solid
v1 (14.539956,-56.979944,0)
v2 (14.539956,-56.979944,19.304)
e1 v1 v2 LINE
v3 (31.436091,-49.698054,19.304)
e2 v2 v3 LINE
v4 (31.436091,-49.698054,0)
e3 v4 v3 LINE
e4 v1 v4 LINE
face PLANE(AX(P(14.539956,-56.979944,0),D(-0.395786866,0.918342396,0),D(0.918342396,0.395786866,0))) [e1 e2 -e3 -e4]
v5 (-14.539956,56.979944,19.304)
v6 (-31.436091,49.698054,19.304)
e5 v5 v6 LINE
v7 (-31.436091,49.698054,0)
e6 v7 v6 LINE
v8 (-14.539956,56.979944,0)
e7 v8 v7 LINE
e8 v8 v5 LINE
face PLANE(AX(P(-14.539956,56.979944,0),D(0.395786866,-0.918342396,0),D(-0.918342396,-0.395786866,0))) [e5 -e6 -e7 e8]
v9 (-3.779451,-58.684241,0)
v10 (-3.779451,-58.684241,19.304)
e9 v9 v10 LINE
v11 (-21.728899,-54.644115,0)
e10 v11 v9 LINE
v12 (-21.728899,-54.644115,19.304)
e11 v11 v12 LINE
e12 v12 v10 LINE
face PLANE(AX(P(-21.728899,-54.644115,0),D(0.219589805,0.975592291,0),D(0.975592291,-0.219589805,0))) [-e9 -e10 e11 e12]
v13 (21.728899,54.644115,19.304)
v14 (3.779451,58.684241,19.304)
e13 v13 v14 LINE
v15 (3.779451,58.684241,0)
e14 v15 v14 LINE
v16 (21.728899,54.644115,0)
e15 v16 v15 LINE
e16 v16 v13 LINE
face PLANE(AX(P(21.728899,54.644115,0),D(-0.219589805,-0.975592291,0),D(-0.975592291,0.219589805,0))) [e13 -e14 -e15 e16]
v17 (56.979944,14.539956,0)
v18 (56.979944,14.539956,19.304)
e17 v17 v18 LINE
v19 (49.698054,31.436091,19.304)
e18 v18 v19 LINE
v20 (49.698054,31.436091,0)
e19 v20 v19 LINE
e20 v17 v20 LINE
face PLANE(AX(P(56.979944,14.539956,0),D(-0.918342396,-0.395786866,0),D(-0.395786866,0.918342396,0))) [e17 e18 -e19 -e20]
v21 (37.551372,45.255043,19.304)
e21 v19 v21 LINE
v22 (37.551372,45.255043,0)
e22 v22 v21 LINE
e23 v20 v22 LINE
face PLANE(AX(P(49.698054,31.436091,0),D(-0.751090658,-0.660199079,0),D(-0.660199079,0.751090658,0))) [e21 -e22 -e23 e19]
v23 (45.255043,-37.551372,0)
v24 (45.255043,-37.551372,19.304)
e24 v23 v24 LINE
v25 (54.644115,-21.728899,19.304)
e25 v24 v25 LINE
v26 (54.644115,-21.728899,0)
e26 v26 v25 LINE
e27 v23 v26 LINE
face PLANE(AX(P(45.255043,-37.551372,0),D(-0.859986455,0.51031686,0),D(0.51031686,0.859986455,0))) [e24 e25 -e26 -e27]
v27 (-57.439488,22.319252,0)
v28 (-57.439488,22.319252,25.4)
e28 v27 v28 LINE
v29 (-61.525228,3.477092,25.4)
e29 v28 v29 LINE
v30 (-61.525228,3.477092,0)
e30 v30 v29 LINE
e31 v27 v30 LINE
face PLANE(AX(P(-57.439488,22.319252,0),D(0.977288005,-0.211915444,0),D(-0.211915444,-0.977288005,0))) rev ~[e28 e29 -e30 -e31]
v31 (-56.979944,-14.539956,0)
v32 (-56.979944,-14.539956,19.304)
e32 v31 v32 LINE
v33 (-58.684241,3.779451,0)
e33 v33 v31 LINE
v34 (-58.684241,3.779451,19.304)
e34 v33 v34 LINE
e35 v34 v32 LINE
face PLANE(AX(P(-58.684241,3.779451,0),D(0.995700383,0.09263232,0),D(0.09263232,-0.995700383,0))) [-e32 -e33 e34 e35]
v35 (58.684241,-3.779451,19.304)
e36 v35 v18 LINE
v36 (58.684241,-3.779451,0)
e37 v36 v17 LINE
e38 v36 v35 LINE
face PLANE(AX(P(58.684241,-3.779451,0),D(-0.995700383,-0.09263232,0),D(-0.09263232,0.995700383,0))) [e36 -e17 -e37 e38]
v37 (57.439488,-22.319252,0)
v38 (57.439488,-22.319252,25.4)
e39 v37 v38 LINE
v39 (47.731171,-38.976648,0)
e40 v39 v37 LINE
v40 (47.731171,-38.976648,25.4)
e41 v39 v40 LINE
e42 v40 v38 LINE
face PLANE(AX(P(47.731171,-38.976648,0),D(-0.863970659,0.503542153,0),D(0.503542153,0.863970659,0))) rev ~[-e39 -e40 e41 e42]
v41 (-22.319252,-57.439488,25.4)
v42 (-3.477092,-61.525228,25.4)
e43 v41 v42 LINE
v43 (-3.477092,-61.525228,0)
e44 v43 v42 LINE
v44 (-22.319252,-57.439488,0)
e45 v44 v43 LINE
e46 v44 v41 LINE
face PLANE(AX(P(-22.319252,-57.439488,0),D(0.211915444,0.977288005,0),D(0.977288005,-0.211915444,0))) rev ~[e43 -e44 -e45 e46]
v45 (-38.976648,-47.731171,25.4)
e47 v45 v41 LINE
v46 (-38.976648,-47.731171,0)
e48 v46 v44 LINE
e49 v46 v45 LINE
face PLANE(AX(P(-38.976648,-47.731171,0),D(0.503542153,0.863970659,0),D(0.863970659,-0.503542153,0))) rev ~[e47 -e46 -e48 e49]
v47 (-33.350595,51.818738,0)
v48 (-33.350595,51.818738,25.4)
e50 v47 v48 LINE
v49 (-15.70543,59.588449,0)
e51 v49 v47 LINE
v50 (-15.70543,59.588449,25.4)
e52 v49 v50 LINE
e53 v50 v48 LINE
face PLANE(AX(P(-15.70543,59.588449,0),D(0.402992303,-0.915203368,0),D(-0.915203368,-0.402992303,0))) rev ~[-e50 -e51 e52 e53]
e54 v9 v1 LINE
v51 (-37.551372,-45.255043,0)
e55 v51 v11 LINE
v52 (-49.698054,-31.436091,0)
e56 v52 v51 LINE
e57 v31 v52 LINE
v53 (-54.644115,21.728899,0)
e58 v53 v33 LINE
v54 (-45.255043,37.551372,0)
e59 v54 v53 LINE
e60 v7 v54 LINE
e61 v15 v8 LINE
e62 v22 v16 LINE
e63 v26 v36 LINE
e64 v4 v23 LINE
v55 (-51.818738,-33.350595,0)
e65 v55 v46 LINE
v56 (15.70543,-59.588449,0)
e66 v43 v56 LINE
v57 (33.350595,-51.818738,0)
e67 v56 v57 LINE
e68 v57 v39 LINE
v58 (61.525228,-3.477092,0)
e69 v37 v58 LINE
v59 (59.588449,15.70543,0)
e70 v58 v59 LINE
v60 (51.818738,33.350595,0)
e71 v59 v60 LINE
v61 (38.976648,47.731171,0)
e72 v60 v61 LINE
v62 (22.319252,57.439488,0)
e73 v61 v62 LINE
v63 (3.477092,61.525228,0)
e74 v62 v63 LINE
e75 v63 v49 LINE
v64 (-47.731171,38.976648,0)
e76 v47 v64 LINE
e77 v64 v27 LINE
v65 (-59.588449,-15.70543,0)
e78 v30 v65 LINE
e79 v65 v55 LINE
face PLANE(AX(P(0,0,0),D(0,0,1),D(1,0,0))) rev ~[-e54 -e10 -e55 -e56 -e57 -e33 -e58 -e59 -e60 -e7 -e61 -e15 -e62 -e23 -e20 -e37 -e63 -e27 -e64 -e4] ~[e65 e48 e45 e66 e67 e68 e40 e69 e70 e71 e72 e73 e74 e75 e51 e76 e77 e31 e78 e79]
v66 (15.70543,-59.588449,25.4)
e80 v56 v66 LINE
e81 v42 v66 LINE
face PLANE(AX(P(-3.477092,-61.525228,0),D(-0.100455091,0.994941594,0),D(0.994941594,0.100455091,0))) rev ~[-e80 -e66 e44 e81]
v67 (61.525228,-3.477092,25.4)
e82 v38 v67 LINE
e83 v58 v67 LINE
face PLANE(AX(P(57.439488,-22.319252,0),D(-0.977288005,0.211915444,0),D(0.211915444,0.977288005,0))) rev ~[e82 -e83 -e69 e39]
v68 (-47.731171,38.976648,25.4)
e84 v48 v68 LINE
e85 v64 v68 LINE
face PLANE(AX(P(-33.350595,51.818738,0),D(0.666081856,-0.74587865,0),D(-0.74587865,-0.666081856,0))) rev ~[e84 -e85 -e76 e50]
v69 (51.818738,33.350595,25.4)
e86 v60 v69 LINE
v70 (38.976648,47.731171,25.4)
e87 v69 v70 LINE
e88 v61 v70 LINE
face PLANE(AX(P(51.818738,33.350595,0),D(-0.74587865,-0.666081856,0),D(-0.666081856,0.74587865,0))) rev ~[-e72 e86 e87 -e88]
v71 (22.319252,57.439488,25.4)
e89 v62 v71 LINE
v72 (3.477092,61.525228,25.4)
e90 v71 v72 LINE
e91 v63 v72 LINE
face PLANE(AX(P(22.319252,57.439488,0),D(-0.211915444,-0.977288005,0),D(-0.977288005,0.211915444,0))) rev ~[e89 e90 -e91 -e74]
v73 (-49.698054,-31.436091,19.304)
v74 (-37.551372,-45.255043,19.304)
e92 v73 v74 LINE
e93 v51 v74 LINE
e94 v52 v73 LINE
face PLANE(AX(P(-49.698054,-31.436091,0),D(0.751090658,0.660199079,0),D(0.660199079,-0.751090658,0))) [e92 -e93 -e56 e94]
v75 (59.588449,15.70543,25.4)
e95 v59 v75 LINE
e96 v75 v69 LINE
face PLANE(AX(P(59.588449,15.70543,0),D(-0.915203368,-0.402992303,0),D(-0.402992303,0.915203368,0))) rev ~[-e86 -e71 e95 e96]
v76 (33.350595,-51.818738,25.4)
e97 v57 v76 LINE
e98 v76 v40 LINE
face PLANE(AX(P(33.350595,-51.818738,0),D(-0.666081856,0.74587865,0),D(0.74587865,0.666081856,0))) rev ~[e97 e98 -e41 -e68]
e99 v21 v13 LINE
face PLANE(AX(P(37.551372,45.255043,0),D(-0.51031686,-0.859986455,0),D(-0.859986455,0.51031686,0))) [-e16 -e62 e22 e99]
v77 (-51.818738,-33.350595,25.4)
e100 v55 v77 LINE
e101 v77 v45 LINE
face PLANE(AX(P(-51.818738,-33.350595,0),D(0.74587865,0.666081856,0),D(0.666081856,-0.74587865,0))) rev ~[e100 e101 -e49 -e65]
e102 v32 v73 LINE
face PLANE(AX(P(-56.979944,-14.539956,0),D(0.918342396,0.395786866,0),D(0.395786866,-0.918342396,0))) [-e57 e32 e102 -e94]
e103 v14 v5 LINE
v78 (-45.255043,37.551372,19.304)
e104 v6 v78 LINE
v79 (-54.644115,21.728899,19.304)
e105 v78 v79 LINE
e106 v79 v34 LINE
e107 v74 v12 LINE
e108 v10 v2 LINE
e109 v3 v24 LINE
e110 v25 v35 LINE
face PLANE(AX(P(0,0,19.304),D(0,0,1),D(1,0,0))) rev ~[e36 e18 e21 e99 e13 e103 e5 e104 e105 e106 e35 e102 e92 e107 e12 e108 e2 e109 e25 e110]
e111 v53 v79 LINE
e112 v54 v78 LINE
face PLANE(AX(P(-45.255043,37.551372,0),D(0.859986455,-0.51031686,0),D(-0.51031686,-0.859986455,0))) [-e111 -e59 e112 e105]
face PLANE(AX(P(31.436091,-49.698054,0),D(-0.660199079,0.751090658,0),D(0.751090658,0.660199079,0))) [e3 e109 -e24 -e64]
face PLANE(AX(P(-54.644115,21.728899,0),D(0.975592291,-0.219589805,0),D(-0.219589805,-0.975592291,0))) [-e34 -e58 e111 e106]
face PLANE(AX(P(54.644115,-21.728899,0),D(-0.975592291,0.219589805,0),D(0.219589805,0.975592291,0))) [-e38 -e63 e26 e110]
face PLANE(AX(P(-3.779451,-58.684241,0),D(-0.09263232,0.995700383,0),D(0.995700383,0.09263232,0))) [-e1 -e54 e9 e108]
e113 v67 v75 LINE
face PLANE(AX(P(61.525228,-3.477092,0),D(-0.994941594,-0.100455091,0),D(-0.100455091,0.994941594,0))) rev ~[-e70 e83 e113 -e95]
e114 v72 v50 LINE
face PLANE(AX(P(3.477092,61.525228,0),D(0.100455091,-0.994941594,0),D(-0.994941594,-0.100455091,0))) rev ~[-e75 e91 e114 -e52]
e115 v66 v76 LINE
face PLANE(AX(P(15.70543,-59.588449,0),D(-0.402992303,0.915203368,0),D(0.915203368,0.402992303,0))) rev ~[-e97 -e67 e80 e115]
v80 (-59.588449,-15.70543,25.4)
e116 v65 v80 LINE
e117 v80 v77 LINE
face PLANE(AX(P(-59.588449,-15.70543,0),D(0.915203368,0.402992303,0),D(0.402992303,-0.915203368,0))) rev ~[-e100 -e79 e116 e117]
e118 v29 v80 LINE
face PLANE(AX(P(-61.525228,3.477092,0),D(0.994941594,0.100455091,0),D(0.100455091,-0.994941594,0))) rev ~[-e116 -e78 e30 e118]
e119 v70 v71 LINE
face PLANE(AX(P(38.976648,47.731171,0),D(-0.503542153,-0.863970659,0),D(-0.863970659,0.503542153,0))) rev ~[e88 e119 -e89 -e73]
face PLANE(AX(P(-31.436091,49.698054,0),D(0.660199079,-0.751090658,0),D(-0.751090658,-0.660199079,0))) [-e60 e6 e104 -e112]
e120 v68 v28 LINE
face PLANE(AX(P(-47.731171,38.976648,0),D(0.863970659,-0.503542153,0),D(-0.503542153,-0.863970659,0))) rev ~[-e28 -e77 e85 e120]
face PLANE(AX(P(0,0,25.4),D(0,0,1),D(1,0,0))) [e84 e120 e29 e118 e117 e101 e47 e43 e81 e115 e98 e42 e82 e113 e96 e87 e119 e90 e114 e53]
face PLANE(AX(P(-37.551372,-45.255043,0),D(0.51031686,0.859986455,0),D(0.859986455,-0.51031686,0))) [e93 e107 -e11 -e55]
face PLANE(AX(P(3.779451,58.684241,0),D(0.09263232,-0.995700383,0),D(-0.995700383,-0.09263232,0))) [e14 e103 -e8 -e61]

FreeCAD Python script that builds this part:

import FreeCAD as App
import Part
import Sketcher
Q = App.Units.Quantity


def add_polygon(sketch, points):
    """Adds a closed chain of lines whose ends are joined by coincident constraints."""
    first, n = sketch.GeometryCount, len(points)
    for a, b in zip(points, points[1:] + points[:1]):
        sketch.addGeometry(Part.LineSegment(App.Vector(*a, 0), App.Vector(*b, 0)), False)
    for i in range(n):
        sketch.addConstraint(Sketcher.Constraint("Coincident", first + i, 2, first + (i + 1) % n, 1))

doc = App.newDocument("Part")
body = doc.addObject("PartDesign::Body", "Body")

sketch1 = doc.addObject("Sketcher::SketchObject", "Sketch")
body.addObject(sketch1)
sketch1.AttachmentSupport = (doc.XY_Plane, [""])
sketch1.MapMode = "FlatFace"
add_polygon(sketch1, [(-48, 39), (-57, 22), (-62, 3), (-60, -16), (-52, -33), (-39, -48), (-22, -57), (-3, -62), (16, -60), (33, -52), (48, -39), (57, -22), (62, -3), (60, 16), (52, 33), (39, 48), (22, 57), (3, 62), (-16, 60), (-33, 52)])
sketch1.addConstraint(Sketcher.Constraint("Symmetric", 0, 2, 10, 2, -1, 1))
sketch1.addConstraint(Sketcher.Constraint("Symmetric", 1, 2, 11, 2, -1, 1))
sketch1.addConstraint(Sketcher.Constraint("Symmetric", 2, 2, 12, 2, -1, 1))
sketch1.addConstraint(Sketcher.Constraint("Symmetric", 3, 2, 13, 2, -1, 1))
sketch1.addConstraint(Sketcher.Constraint("Symmetric", 4, 2, 14, 2, -1, 1))
sketch1.addConstraint(Sketcher.Constraint("Symmetric", 5, 2, 15, 2, -1, 1))
sketch1.addConstraint(Sketcher.Constraint("Symmetric", 6, 2, 16, 2, -1, 1))
sketch1.addConstraint(Sketcher.Constraint("Symmetric", 7, 2, 17, 2, -1, 1))
sketch1.addConstraint(Sketcher.Constraint("Symmetric", 8, 2, 18, 2, -1, 1))
sketch1.addConstraint(Sketcher.Constraint("Symmetric", 9, 2, 19, 2, -1, 1))
sketch1.addConstraint(Sketcher.Constraint("Perpendicular", 0, 5))
sketch1.addConstraint(Sketcher.Constraint("Perpendicular", 1, 6))
sketch1.addConstraint(Sketcher.Constraint("Perpendicular", 2, 7))
sketch1.addConstraint(Sketcher.Constraint("Perpendicular", 3, 8))
sketch1.addConstraint(Sketcher.Constraint("Perpendicular", 4, 9))
sketch1.addConstraint(Sketcher.Constraint("Equal", 0, 1))
sketch1.addConstraint(Sketcher.Constraint("Equal", 1, 2))
sketch1.addConstraint(Sketcher.Constraint("Equal", 2, 3))
sketch1.addConstraint(Sketcher.Constraint("Equal", 3, 4))
sketch1.addConstraint(Sketcher.Constraint("Equal", 4, 5))
sketch1.addConstraint(Sketcher.Constraint("Equal", 5, 6))
sketch1.addConstraint(Sketcher.Constraint("Equal", 6, 7))
sketch1.addConstraint(Sketcher.Constraint("Equal", 7, 8))
sketch1.addConstraint(Sketcher.Constraint("Equal", 8, 9))
sketch1.addConstraint(Sketcher.Constraint("DistanceX", 2, 2, 4, 2, 20.611801))
sketch1.addConstraint(Sketcher.Constraint("Distance", 0, 19.280048))
sketch1.addConstraint(Sketcher.Constraint("DistanceY", -1, 1, 0, 2, 22.319252))
sketch1.addConstraint(Sketcher.Constraint("DistanceY", -1, 1, 1, 2, 3.477092))
sketch1.addConstraint(Sketcher.Constraint("DistanceX", 2, 2, -1, 1, 59.588449))
sketch1.addConstraint(Sketcher.Constraint("DistanceY", 2, 2, -1, 1, 15.70543))
pad1 = doc.addObject("PartDesign::Pad", "Pad")
body.addObject(pad1)
pad1.Profile = sketch1
pad1.Length = Q("1 in")

sketch2 = doc.addObject("Sketcher::SketchObject", "Sketch001")
body.addObject(sketch2)
sketch2.AttachmentSupport = (doc.XY_Plane, [""])
sketch2.MapMode = "FlatFace"
add_polygon(sketch2, [(-45, 38), (-55, 22), (-59, 4), (-57, -15), (-50, -31), (-38, -45), (-22, -55), (-4, -59), (15, -57), (31, -50), (45, -38), (55, -22), (59, -4), (57, 15), (50, 31), (38, 45), (22, 55), (4, 59), (-15, 57), (-31, 50)])
sketch2.addConstraint(Sketcher.Constraint("Symmetric", 0, 2, 10, 2, -1, 1))
sketch2.addConstraint(Sketcher.Constraint("Symmetric", 1, 2, 11, 2, -1, 1))
sketch2.addConstraint(Sketcher.Constraint("Symmetric", 2, 2, 12, 2, -1, 1))
sketch2.addConstraint(Sketcher.Constraint("Symmetric", 3, 2, 13, 2, -1, 1))
sketch2.addConstraint(Sketcher.Constraint("Symmetric", 4, 2, 14, 2, -1, 1))
sketch2.addConstraint(Sketcher.Constraint("Symmetric", 5, 2, 15, 2, -1, 1))
sketch2.addConstraint(Sketcher.Constraint("Symmetric", 6, 2, 16, 2, -1, 1))
sketch2.addConstraint(Sketcher.Constraint("Symmetric", 7, 2, 17, 2, -1, 1))
sketch2.addConstraint(Sketcher.Constraint("Symmetric", 8, 2, 18, 2, -1, 1))
sketch2.addConstraint(Sketcher.Constraint("Symmetric", 9, 2, 19, 2, -1, 1))
sketch2.addConstraint(Sketcher.Constraint("Perpendicular", 0, 5))
sketch2.addConstraint(Sketcher.Constraint("Perpendicular", 1, 6))
sketch2.addConstraint(Sketcher.Constraint("Perpendicular", 2, 7))
sketch2.addConstraint(Sketcher.Constraint("Perpendicular", 3, 8))
sketch2.addConstraint(Sketcher.Constraint("Perpendicular", 4, 9))
sketch2.addConstraint(Sketcher.Constraint("Equal", 0, 1))
sketch2.addConstraint(Sketcher.Constraint("Equal", 1, 2))
sketch2.addConstraint(Sketcher.Constraint("Equal", 2, 3))
sketch2.addConstraint(Sketcher.Constraint("Equal", 3, 4))
sketch2.addConstraint(Sketcher.Constraint("Equal", 4, 5))
sketch2.addConstraint(Sketcher.Constraint("Equal", 5, 6))
sketch2.addConstraint(Sketcher.Constraint("Equal", 6, 7))
sketch2.addConstraint(Sketcher.Constraint("Equal", 7, 8))
sketch2.addConstraint(Sketcher.Constraint("Equal", 8, 9))
sketch2.addConstraint(Sketcher.Constraint("DistanceY", -1, 1, 0, 2, 21.728899))
sketch2.addConstraint(Sketcher.Constraint("DistanceY", 7, 2, 4, 2, 11.724901))
sketch2.addConstraint(Sketcher.Constraint("DistanceX", 2, 2, 7, 2, 71.5199))
sketch2.addConstraint(Sketcher.Constraint("DistanceX", 1, 2, -1, 1, 58.684241))
sketch2.addConstraint(Sketcher.Constraint("DistanceY", -1, 1, 1, 2, 3.779451))
sketch2.addConstraint(Sketcher.Constraint("DistanceY", 3, 2, -1, 1, 31.436091))
pocket1 = doc.addObject("PartDesign::Pocket", "Pocket")
body.addObject(pocket1)
pocket1.Profile = sketch2
pocket1.Length = Q("0.76 in")
pocket1.Reversed = True

doc.recompute()
